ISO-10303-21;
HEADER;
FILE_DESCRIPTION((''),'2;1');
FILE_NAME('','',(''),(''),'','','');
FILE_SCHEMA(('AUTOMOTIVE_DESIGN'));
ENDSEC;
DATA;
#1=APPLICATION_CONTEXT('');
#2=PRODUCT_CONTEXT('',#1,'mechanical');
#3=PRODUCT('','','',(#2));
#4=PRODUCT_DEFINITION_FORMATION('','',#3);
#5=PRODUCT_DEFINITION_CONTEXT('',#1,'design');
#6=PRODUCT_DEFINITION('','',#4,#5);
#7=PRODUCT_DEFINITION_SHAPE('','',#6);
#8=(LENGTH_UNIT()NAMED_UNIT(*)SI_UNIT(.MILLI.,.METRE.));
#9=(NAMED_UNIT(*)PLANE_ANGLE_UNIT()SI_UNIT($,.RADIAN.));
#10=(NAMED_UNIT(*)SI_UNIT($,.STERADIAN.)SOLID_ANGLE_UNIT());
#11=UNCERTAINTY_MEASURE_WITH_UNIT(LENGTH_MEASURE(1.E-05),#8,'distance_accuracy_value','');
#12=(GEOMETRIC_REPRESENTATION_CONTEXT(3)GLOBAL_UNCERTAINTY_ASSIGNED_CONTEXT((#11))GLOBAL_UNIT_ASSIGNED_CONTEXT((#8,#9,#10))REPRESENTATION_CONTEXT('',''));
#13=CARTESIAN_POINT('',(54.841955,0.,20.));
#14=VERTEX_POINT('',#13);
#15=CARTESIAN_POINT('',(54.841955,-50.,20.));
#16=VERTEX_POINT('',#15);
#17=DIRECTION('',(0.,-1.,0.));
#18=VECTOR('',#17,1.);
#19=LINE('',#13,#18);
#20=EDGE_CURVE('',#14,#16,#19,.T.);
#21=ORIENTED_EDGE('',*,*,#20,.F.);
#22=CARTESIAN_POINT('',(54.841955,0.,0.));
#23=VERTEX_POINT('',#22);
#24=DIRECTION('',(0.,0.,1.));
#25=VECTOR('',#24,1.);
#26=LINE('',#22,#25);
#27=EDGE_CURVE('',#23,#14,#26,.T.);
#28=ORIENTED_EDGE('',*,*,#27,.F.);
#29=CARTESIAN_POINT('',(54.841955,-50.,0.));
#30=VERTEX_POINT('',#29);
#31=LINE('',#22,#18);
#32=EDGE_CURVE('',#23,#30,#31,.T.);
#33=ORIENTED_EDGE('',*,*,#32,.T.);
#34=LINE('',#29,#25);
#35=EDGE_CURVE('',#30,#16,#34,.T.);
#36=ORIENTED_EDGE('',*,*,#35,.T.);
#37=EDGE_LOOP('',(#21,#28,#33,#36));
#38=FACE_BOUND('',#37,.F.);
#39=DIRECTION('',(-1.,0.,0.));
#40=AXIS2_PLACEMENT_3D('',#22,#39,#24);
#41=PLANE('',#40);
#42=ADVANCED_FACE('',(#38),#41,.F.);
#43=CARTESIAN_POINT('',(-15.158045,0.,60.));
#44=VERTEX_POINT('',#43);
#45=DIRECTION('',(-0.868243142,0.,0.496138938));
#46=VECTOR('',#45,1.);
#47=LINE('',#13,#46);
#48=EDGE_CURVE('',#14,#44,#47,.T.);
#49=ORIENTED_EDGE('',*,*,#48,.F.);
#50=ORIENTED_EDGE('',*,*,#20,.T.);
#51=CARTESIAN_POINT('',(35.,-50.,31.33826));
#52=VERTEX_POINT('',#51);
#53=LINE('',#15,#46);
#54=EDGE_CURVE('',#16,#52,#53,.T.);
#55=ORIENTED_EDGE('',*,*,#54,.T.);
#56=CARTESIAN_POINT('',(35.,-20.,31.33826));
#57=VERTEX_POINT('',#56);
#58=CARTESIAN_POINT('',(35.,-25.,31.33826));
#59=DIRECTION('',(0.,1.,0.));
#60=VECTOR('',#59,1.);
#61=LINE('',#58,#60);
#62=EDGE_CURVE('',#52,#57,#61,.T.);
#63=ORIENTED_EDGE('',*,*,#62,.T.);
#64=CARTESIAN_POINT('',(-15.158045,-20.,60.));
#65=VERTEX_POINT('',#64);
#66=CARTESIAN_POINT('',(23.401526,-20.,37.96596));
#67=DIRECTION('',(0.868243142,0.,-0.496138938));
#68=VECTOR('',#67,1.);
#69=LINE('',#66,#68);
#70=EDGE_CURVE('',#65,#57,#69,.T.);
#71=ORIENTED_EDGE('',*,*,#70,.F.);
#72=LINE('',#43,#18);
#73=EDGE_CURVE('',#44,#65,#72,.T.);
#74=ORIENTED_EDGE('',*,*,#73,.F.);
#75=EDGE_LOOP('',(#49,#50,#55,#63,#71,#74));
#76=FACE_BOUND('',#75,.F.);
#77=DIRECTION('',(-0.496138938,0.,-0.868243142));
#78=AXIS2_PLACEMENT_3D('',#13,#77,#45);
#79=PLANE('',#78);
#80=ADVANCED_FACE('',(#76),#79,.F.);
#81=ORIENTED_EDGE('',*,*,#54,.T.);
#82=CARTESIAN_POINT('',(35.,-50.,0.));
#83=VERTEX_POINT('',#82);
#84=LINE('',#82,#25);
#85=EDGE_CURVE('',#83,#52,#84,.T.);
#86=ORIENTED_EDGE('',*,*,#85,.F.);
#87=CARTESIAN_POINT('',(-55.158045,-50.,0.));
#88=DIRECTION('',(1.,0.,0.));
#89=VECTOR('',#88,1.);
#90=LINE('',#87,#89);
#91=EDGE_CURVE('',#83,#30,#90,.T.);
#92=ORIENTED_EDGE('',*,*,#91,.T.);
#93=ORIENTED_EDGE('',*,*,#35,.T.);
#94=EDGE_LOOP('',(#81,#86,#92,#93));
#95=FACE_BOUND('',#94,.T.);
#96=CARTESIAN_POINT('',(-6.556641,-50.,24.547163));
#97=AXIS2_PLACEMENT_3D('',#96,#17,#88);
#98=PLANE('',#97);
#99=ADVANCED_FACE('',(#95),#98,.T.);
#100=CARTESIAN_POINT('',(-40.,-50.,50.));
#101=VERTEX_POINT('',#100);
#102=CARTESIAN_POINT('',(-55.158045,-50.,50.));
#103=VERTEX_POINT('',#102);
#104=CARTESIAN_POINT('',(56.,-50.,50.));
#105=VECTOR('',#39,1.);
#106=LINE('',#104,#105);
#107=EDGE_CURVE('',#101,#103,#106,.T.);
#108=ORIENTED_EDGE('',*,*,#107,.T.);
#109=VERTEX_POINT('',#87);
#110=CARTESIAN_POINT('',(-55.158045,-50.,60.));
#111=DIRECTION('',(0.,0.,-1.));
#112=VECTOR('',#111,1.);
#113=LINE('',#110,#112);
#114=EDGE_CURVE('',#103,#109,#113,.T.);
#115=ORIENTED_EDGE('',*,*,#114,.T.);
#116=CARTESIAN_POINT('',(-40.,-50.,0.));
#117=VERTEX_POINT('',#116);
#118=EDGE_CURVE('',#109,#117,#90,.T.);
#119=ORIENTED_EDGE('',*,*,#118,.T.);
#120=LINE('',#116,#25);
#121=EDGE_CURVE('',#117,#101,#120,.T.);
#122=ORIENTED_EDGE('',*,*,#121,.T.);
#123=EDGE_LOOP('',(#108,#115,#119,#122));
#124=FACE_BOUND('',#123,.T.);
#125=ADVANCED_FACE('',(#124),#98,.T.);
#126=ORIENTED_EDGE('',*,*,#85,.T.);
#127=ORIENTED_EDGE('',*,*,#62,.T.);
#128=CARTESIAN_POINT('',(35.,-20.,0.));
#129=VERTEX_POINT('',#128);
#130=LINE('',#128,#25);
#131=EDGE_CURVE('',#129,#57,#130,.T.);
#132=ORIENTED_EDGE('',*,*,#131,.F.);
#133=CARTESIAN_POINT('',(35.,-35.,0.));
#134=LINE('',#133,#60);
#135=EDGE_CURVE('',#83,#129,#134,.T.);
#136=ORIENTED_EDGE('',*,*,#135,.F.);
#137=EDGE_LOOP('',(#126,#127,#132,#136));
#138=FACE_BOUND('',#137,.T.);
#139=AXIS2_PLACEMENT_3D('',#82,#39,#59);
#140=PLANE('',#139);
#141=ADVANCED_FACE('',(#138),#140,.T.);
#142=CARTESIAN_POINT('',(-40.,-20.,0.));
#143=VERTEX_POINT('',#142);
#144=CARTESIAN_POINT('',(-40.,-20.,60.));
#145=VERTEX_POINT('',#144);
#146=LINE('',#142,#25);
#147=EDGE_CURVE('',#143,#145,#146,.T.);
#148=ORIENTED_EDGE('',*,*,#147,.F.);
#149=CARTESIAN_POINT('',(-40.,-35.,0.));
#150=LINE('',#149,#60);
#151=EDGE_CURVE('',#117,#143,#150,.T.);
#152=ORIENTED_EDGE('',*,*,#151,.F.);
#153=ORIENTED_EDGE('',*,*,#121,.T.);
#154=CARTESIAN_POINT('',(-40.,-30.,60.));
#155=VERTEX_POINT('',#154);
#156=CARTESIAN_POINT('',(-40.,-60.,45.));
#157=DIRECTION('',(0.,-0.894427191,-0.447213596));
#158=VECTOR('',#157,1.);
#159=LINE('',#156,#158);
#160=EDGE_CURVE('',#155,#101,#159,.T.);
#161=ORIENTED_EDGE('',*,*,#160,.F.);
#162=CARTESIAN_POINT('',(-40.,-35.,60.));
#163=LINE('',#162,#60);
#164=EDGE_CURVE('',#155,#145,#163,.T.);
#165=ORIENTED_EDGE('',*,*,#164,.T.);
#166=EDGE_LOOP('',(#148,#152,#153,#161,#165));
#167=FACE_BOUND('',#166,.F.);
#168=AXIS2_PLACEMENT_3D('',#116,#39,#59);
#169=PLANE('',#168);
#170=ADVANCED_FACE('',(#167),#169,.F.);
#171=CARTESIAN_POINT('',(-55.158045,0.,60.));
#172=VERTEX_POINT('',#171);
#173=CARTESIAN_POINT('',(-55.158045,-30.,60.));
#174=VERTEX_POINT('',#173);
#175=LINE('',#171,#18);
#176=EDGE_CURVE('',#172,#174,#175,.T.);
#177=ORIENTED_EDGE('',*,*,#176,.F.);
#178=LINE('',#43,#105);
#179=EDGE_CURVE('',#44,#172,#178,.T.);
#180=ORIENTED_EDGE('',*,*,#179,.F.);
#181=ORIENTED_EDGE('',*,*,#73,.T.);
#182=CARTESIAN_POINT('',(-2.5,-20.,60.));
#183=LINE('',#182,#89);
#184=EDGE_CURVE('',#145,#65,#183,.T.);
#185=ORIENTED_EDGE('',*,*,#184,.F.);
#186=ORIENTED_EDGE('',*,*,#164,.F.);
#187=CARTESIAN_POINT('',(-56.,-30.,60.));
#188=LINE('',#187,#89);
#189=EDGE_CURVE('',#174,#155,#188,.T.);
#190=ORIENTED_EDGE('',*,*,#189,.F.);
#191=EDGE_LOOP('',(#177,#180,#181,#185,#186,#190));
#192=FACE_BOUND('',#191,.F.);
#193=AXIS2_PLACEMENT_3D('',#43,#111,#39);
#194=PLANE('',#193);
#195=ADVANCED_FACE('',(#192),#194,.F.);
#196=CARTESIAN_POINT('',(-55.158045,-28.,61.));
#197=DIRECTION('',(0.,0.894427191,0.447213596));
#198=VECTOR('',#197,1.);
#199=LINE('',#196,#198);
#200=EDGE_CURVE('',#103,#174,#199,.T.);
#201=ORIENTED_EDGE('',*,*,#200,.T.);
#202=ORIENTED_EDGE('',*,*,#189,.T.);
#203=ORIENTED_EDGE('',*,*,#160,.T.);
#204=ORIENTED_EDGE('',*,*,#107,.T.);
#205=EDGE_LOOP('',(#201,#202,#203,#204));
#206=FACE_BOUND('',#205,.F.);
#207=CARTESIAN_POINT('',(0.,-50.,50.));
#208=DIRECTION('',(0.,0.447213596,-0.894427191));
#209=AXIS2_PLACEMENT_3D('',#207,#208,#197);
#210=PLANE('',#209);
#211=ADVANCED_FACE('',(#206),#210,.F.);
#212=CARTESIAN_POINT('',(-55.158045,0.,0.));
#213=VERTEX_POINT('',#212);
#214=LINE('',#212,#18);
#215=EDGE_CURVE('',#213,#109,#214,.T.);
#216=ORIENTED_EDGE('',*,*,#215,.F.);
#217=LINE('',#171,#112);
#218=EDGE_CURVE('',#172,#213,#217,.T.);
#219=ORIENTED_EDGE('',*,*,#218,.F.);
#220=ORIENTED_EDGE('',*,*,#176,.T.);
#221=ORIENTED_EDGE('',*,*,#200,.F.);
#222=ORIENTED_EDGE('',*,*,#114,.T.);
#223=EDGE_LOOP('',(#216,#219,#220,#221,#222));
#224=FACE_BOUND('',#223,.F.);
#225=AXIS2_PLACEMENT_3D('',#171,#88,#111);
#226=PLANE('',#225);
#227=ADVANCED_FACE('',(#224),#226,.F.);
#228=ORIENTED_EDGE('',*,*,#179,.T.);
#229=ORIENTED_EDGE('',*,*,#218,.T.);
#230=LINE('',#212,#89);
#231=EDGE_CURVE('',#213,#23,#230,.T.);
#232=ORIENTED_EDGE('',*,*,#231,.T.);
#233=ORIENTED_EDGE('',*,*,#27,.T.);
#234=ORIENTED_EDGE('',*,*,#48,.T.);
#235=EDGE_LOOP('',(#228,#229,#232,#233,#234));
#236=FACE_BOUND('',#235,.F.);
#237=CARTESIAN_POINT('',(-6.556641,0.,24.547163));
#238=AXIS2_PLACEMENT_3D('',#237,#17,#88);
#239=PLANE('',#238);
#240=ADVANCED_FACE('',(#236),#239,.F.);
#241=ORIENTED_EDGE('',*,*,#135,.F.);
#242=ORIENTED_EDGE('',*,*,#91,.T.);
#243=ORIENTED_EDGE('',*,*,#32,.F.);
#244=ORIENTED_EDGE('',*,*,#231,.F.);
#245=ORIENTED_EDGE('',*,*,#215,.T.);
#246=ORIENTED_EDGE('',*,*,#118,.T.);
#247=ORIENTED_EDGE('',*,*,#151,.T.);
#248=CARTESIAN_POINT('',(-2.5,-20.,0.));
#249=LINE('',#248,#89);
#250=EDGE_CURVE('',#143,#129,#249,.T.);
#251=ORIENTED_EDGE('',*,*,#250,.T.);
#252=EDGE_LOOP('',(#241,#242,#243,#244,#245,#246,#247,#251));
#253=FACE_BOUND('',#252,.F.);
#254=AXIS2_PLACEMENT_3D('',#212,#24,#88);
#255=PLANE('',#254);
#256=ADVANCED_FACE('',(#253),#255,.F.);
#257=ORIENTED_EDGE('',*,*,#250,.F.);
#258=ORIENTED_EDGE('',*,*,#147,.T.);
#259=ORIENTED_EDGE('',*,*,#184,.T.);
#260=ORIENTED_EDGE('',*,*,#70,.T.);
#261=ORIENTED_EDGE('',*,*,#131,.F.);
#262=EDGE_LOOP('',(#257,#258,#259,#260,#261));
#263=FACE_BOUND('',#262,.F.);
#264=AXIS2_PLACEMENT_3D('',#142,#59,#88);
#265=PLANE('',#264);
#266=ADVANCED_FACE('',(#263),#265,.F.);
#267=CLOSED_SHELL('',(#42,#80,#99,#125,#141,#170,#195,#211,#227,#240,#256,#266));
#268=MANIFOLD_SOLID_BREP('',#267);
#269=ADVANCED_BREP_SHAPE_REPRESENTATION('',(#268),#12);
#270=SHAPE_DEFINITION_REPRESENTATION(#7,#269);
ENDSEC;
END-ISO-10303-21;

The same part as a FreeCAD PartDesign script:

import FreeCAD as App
import Part
import Sketcher
Q = App.Units.Quantity

doc = App.newDocument("Part")
body = doc.addObject("PartDesign::Body", "Body")

# Sketch on XZ plane
sketch1 = body.newObject("Sketcher::SketchObject", "Sketch")
sketch1.AttachmentSupport = (doc.getObject("XZ_Plane"), [""])
sketch1.MapMode = "FlatFace"
sketch1.addGeometry(Part.LineSegment(App.Vector(-55, 60, 0), App.Vector(-55, 0, 0)), False)
sketch1.addGeometry(Part.LineSegment(App.Vector(-55, 0, 0), App.Vector(55, 0, 0)), False)
sketch1.addGeometry(Part.LineSegment(App.Vector(55, 0, 0), App.Vector(55, 20, 0)), False)
sketch1.addGeometry(Part.LineSegment(App.Vector(55, 20, 0), App.Vector(-15, 60, 0)), False)
sketch1.addGeometry(Part.LineSegment(App.Vector(-15, 60, 0), App.Vector(-55, 60, 0)), False)
sketch1.addConstraint(Sketcher.Constraint("Coincident", 0, 2, 1, 1))
sketch1.addConstraint(Sketcher.Constraint("Coincident", 1, 2, 2, 1))
sketch1.addConstraint(Sketcher.Constraint("Coincident", 2, 2, 3, 1))
sketch1.addConstraint(Sketcher.Constraint("Coincident", 3, 2, 4, 1))
sketch1.addConstraint(Sketcher.Constraint("Coincident", 4, 2, 0, 1))
sketch1.addConstraint(Sketcher.Constraint("Vertical", 0))
sketch1.addConstraint(Sketcher.Constraint("Horizontal", 1))
sketch1.addConstraint(Sketcher.Constraint("Vertical", 2))
sketch1.addConstraint(Sketcher.Constraint("Horizontal", 4))
sketch1.addConstraint(Sketcher.Constraint("PointOnObject", 0, 2, -1))
sketch1.addConstraint(Sketcher.Constraint("DistanceX", 1, 1, 1, 2, Q("110 mm")))
sketch1.addConstraint(Sketcher.Constraint("DistanceX", 4, 2, 4, 1, Q("40 mm")))
sketch1.addConstraint(Sketcher.Constraint("DistanceY", 0, 2, 0, 1, Q("60 mm")))
sketch1.addConstraint(Sketcher.Constraint("DistanceY", 2, 1, 2, 2, Q("20 mm")))
sketch1.addConstraint(Sketcher.Constraint("DistanceX", 0, 2, -1, 1, Q("55.158045 mm")))
pad1 = body.newObject("PartDesign::Pad", "Pad")
pad1.Profile = sketch1
pad1.Length = 50

# Sketch on XY plane
sketch2 = body.newObject("Sketcher::SketchObject", "Sketch001")
sketch2.AttachmentSupport = (doc.getObject("XY_Plane"), [""])
sketch2.MapMode = "FlatFace"
sketch2.addGeometry(Part.LineSegment(App.Vector(-40, -20, 0), App.Vector(-40, -50, 0)), False)
sketch2.addGeometry(Part.LineSegment(App.Vector(-40, -50, 0), App.Vector(35, -50, 0)), False)
sketch2.addGeometry(Part.LineSegment(App.Vector(35, -50, 0), App.Vector(35, -20, 0)), False)
sketch2.addGeometry(Part.LineSegment(App.Vector(35, -20, 0), App.Vector(-40, -20, 0)), False)
sketch2.addConstraint(Sketcher.Constraint("Coincident", 0, 2, 1, 1))
sketch2.addConstraint(Sketcher.Constraint("Coincident", 1, 2, 2, 1))
sketch2.addConstraint(Sketcher.Constraint("Coincident", 2, 2, 3, 1))
sketch2.addConstraint(Sketcher.Constraint("Coincident", 3, 2, 0, 1))
sketch2.addConstraint(Sketcher.Constraint("Vertical", 0))
sketch2.addConstraint(Sketcher.Constraint("Horizontal", 1))
sketch2.addConstraint(Sketcher.Constraint("Vertical", 2))
sketch2.addConstraint(Sketcher.Constraint("Horizontal", 3))
sketch2.addConstraint(Sketcher.Constraint("DistanceX", 1, 1, 1, 2, Q("75 mm")))
sketch2.addConstraint(Sketcher.Constraint("DistanceY", 0, 2, 0, 1, Q("30 mm")))
sketch2.addConstraint(Sketcher.Constraint("DistanceX", 0, 2, -1, 1, Q("40 mm")))
sketch2.addConstraint(Sketcher.Constraint("DistanceY", 0, 2, -1, 1, Q("50 mm")))
pocket1 = body.newObject("PartDesign::Pocket", "Pocket")
pocket1.Profile = sketch2
pocket1.Length = 60
pocket1.Reversed = True

# Sketch on YZ plane
sketch3 = body.newObject("Sketcher::SketchObject", "Sketch002")
sketch3.AttachmentSupport = (doc.getObject("YZ_Plane"), [""])
sketch3.MapMode = "FlatFace"
sketch3.addGeometry(Part.LineSegment(App.Vector(-50, 50, 0), App.Vector(-30, 60, 0)), False)
sketch3.addGeometry(Part.LineSegment(App.Vector(-30, 60, 0), App.Vector(-50, 60, 0)), False)
sketch3.addGeometry(Part.LineSegment(App.Vector(-50, 60, 0), App.Vector(-50, 50, 0)), False)
sketch3.addConstraint(Sketcher.Constraint("Coincident", 0, 2, 1, 1))
sketch3.addConstraint(Sketcher.Constraint("Coincident", 1, 2, 2, 1))
sketch3.addConstraint(Sketcher.Constraint("Coincident", 2, 2, 0, 1))
sketch3.addConstraint(Sketcher.Constraint("Horizontal", 1))
sketch3.addConstraint(Sketcher.Constraint("Vertical", 2))
sketch3.addConstraint(Sketcher.Constraint("DistanceX", 1, 2, 1, 1, Q("20 mm")))
sketch3.addConstraint(Sketcher.Constraint("DistanceY", 2, 2, 2, 1, Q("10 mm")))
sketch3.addConstraint(Sketcher.Constraint("DistanceX", 0, 2, -1, 1, Q("30 mm")))
sketch3.addConstraint(Sketcher.Constraint("DistanceY", -1, 1, 0, 2, Q("60 mm")))
pocket2 = body.newObject("PartDesign::Pocket", "Pocket001")
pocket2.Profile = sketch3
pocket2.Length = 112
pocket2.Midplane = True

doc.recompute()
